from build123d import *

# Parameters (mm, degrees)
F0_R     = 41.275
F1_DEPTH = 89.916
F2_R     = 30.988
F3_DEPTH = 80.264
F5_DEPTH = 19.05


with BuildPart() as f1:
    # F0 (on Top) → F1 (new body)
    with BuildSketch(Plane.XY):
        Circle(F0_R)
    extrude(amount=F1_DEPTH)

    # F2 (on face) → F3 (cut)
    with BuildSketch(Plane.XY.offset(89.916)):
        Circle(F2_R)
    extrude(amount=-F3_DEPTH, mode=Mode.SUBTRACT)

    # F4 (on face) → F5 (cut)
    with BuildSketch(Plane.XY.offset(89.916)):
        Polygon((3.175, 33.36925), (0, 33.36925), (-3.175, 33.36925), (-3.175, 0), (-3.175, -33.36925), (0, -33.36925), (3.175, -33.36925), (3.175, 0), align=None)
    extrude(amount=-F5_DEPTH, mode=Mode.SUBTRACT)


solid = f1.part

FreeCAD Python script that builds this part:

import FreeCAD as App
import Part
import Sketcher
from FreeCAD import Vector
Q = App.Units.Quantity


def add_polygon(sketch, points):
    """Adds a closed chain of lines whose ends are joined by coincident constraints."""
    first, n = sketch.GeometryCount, len(points)
    for a, b in zip(points, points[1:] + points[:1]):
        sketch.addGeometry(Part.LineSegment(App.Vector(*a, 0), App.Vector(*b, 0)), False)
    for i in range(n):
        sketch.addConstraint(Sketcher.Constraint("Coincident", first + i, 2, first + (i + 1) % n, 1))

doc = App.newDocument("Part")
params = doc.addObject("Spreadsheet::Sheet", "Params")
for row, (alias, value) in enumerate([
    ("sketch1_diameter", "3.25 in"),
    ("pad1_length", "3.54 in"),
    ("sketch2_diameter", "2.44 in"),
    ("pocket1_length", "3.16 in"),
    ("sketch3_width", "0.25 in"),
    ("pocket2_length", "0.75 in"),
], start=1):
    params.set(f"A{row}", alias)
    params.set(f"B{row}", "=" + value)
    params.setAlias(f"B{row}", alias)

body = doc.addObject("PartDesign::Body", "Body")

sketch1 = body.newObject("Sketcher::SketchObject", "Sketch")
sketch1.AttachmentSupport = (doc.getObject("XY_Plane"), [""])
sketch1.MapMode = "FlatFace"
sketch1.addGeometry(Part.Circle(Vector(0, 0, 0), Vector(0, 0, 1), 41), False)
sketch1.addConstraint(Sketcher.Constraint("Coincident", 0, 3, -1, 1))
sketch1.addConstraint(Sketcher.Constraint("Diameter", 0, Q("3.25 in")))
sketch1.setExpression("Constraints[1]", "Params.sketch1_diameter")
pad1 = body.newObject("PartDesign::Pad", "Pad")
pad1.Profile = sketch1
pad1.setExpression("Length", "Params.pad1_length")

sketch2 = body.newObject("Sketcher::SketchObject", "Sketch001")
sketch2.AttachmentSupport = (doc.getObject("XY_Plane"), [""])
sketch2.MapMode = "FlatFace"
sketch2.AttachmentOffset = App.Placement(Vector(0, 0, 3.54 * 25.4), App.Rotation())
sketch2.addGeometry(Part.Circle(Vector(0, 0, 0), Vector(0, 0, 1), 31), False)
sketch2.addConstraint(Sketcher.Constraint("Coincident", 0, 3, -1, 1))
sketch2.addConstraint(Sketcher.Constraint("Diameter", 0, Q("2.44 in")))
sketch2.setExpression("Constraints[1]", "Params.sketch2_diameter")
pocket1 = body.newObject("PartDesign::Pocket", "Pocket")
pocket1.Profile = sketch2
pocket1.setExpression("Length", "Params.pocket1_length")

sketch3 = body.newObject("Sketcher::SketchObject", "Sketch002")
sketch3.AttachmentSupport = (doc.getObject("XY_Plane"), [""])
sketch3.MapMode = "FlatFace"
sketch3.AttachmentOffset = App.Placement(Vector(0, 0, 3.54 * 25.4), App.Rotation())
add_polygon(sketch3, [(3, 33), (-3, 33), (-3, -33), (3, -33)])
sketch3.addConstraint(Sketcher.Constraint("Horizontal", 0))
sketch3.addConstraint(Sketcher.Constraint("Vertical", 1))
sketch3.addConstraint(Sketcher.Constraint("Horizontal", 2))
sketch3.addConstraint(Sketcher.Constraint("Vertical", 3))
sketch3.addConstraint(Sketcher.Constraint("Symmetric", 0, 2, 2, 2, -1, 1))
sketch3.addConstraint(Sketcher.Constraint("DistanceX", 0, 2, 0, 1, Q("0.25 in")))
sketch3.addConstraint(Sketcher.Constraint("DistanceY", 1, 2, 1, 1, Q("2.6275 in")))
sketch3.setExpression("Constraints[9]", "Params.sketch3_width")
pocket2 = body.newObject("PartDesign::Pocket", "Pocket001")
pocket2.Profile = sketch3
pocket2.setExpression("Length", "Params.pocket2_length")

doc.recompute()
